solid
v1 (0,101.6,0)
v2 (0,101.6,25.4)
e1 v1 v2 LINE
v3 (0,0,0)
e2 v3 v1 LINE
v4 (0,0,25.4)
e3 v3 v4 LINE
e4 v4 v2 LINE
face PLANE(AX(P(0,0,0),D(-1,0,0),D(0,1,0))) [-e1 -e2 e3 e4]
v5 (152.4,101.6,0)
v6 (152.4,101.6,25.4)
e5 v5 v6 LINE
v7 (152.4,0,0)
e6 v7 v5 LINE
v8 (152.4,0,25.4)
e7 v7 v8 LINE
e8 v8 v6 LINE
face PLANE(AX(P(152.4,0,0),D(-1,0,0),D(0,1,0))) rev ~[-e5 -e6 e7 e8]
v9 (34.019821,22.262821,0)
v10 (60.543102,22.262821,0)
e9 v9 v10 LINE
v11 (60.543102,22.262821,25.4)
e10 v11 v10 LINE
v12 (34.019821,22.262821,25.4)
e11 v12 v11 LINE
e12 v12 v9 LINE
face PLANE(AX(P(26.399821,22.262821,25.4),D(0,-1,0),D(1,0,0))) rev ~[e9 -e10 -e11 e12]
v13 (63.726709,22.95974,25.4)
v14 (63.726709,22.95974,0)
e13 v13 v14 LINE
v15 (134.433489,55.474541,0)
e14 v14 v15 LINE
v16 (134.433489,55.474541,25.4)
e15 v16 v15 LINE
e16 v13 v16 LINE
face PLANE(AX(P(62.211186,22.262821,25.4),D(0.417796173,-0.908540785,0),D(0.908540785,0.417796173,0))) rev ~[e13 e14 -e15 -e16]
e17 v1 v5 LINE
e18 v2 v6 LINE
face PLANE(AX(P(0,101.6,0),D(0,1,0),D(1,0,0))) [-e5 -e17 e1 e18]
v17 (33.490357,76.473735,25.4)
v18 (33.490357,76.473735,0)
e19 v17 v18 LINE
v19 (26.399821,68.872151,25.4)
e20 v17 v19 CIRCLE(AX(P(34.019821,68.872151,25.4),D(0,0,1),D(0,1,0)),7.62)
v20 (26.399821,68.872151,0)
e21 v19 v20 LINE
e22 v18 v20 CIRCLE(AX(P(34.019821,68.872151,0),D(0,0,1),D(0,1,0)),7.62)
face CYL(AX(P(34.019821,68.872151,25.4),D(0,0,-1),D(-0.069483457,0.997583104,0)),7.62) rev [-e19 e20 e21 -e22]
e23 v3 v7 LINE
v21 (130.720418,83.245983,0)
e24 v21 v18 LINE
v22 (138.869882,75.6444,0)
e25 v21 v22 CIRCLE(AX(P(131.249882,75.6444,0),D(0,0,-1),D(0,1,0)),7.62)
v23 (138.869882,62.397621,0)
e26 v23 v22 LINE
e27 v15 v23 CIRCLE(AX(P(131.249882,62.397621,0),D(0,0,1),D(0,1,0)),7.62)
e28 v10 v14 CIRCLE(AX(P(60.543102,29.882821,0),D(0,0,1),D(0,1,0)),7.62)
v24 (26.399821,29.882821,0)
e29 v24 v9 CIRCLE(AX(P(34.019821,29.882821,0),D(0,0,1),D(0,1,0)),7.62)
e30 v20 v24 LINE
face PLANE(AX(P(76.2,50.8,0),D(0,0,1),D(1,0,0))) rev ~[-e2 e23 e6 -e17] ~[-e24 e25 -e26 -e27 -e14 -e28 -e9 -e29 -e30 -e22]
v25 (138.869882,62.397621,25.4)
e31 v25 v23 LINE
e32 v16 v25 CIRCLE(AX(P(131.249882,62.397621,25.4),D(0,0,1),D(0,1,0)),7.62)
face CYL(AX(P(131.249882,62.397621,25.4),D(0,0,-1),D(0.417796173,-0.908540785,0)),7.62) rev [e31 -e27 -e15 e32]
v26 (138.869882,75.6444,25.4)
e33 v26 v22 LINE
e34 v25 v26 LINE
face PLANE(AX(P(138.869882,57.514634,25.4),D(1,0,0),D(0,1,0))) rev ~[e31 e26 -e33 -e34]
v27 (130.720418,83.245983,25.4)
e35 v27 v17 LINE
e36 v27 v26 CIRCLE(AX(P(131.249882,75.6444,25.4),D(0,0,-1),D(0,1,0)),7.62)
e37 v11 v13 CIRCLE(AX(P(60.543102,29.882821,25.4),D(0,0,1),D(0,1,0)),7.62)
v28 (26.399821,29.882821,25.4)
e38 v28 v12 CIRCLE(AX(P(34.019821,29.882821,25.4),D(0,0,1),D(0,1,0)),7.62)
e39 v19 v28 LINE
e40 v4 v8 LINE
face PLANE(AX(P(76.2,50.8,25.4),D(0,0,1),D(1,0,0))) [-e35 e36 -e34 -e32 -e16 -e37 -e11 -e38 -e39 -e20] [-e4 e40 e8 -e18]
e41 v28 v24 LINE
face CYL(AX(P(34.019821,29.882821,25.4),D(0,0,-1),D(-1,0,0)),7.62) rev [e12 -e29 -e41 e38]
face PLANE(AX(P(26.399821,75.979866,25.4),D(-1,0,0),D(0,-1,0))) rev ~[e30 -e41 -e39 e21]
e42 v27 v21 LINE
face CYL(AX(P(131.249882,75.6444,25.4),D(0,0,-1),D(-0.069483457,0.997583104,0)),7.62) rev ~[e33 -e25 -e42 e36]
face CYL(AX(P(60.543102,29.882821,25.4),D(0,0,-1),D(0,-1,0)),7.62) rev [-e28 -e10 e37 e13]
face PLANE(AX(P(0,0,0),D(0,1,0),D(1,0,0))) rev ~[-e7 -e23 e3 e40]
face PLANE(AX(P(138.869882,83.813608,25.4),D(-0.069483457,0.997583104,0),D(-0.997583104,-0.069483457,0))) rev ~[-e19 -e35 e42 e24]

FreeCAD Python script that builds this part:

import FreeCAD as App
import Part
import Sketcher
from FreeCAD import Vector
Q = App.Units.Quantity


def edges_at(feature, points):
    """Names of the edges that pass closest to the given points."""
    edges = feature.Shape.Edges
    near = lambda p: min(range(len(edges)), key=lambda i: edges[i].distToShape(Part.Vertex(*p))[0])
    return sorted({f"Edge{near(p) + 1}" for p in points})

doc = App.newDocument("Part")
params = doc.addObject("Spreadsheet::Sheet", "Params")
for row, (alias, value) in enumerate([
    ("sketch1_width", "6 in"),
    ("sketch1_height", "4 in"),
    ("pad1_length", "1 in"),
    ("pocket1_length", "1 in"),
    ("fillet_radius", "0.3 in"),
], start=1):
    params.set(f"A{row}", alias)
    params.set(f"B{row}", "=" + value)
    params.setAlias(f"B{row}", alias)

body = doc.addObject("PartDesign::Body", "Body")

# Sketch on XY plane
sketch1 = body.newObject("Sketcher::SketchObject", "Sketch")
sketch1.AttachmentSupport = (doc.getObject("XY_Plane"), [""])
sketch1.MapMode = "FlatFace"
sketch1.addGeometry([
    Part.LineSegment(Vector(0, 101.6, 0), Vector(0, 0, 0)),
    Part.LineSegment(Vector(0, 0, 0), Vector(152.4, 0, 0)),
    Part.LineSegment(Vector(152.4, 0, 0), Vector(152.4, 101.6, 0)),
    Part.LineSegment(Vector(152.4, 101.6, 0), Vector(0, 101.6, 0)),
], False)
sketch1.addConstraint([
    Sketcher.Constraint("Coincident", 0, 2, 1, 1),
    Sketcher.Constraint("Coincident", 1, 2, 2, 1),
    Sketcher.Constraint("Coincident", 2, 2, 3, 1),
    Sketcher.Constraint("Coincident", 3, 2, 0, 1),
    Sketcher.Constraint("Vertical", 0),
    Sketcher.Constraint("Horizontal", 1),
    Sketcher.Constraint("Vertical", 2),
    Sketcher.Constraint("Horizontal", 3),
    Sketcher.Constraint("Coincident", 0, 2, -1, 1),
    Sketcher.Constraint("DistanceX", 1, 1, 1, 2, Q("6 in")),
    Sketcher.Constraint("DistanceY", 0, 2, 0, 1, Q("4 in")),
])
sketch1.setExpression("Constraints[9]", "Params.sketch1_width")
sketch1.setExpression("Constraints[10]", "Params.sketch1_height")
pad1 = body.newObject("PartDesign::Pad", "Pad")
pad1.Profile = sketch1
pad1.setExpression("Length", "Params.pad1_length")

# Sketch on XY plane
sketch2 = body.newObject("Sketcher::SketchObject", "Sketch001")
sketch2.AttachmentSupport = (doc.getObject("XY_Plane"), [""])
sketch2.MapMode = "FlatFace"
sketch2.AttachmentOffset = App.Placement(Vector(0, 0, 1 * 25.4), App.Rotation())
sketch2.addGeometry([
    Part.LineSegment(Vector(138.869882, 83.813608, 0), Vector(26.399821, 75.979866, 0)),  # 0
    Part.LineSegment(Vector(26.399821, 75.979866, 0), Vector(26.399821, 22.262821, 0)),  # 1
    Part.LineSegment(Vector(26.399821, 22.262821, 0), Vector(62.211186, 22.262821, 0)),  # 2
    Part.LineSegment(Vector(62.211186, 22.262821, 0), Vector(138.869882, 57.514634, 0)),  # 3
    Part.LineSegment(Vector(138.869882, 57.514634, 0), Vector(138.869882, 83.813608, 0)),  # 4
], False)
sketch2.addConstraint([
    Sketcher.Constraint("Coincident", 0, 2, 1, 1),
    Sketcher.Constraint("Coincident", 1, 2, 2, 1),
    Sketcher.Constraint("Coincident", 2, 2, 3, 1),
    Sketcher.Constraint("Coincident", 3, 2, 4, 1),
    Sketcher.Constraint("Coincident", 4, 2, 0, 1),
    Sketcher.Constraint("Vertical", 1),
    Sketcher.Constraint("Horizontal", 2),
    Sketcher.Constraint("Vertical", 4),
    Sketcher.Constraint("Distance", 0, Q("112.742548 mm")),
    Sketcher.Constraint("DistanceX", 2, 1, 2, 2, Q("35.811365 mm")),
    Sketcher.Constraint("DistanceY", 1, 2, 1, 1, Q("53.717045 mm")),
    Sketcher.Constraint("DistanceY", 4, 1, 4, 2, Q("26.298974 mm")),
    Sketcher.Constraint("DistanceX", -1, 1, 0, 2, Q("26.399821 mm")),
    Sketcher.Constraint("DistanceY", -1, 1, 1, 2, Q("22.262821 mm")),
    Sketcher.Constraint("DistanceX", -1, 1, 3, 2, Q("138.869882 mm")),
])
pocket1 = body.newObject("PartDesign::Pocket", "Pocket")
pocket1.Profile = sketch2
pocket1.setExpression("Length", "Params.pocket1_length")
doc.recompute()

fillet = body.newObject("PartDesign::Fillet", "Fillet")
fillet.Base = (pocket1, edges_at(pocket1, [
    (26.4, 75.98, 12.7),
    (26.4, 22.263, 12.7),
    (62.211, 22.263, 12.7),
    (138.87, 57.515, 12.7),
    (138.87, 83.814, 12.7),
]))
fillet.setExpression("Radius", "Params.fillet_radius")

doc.recompute()
